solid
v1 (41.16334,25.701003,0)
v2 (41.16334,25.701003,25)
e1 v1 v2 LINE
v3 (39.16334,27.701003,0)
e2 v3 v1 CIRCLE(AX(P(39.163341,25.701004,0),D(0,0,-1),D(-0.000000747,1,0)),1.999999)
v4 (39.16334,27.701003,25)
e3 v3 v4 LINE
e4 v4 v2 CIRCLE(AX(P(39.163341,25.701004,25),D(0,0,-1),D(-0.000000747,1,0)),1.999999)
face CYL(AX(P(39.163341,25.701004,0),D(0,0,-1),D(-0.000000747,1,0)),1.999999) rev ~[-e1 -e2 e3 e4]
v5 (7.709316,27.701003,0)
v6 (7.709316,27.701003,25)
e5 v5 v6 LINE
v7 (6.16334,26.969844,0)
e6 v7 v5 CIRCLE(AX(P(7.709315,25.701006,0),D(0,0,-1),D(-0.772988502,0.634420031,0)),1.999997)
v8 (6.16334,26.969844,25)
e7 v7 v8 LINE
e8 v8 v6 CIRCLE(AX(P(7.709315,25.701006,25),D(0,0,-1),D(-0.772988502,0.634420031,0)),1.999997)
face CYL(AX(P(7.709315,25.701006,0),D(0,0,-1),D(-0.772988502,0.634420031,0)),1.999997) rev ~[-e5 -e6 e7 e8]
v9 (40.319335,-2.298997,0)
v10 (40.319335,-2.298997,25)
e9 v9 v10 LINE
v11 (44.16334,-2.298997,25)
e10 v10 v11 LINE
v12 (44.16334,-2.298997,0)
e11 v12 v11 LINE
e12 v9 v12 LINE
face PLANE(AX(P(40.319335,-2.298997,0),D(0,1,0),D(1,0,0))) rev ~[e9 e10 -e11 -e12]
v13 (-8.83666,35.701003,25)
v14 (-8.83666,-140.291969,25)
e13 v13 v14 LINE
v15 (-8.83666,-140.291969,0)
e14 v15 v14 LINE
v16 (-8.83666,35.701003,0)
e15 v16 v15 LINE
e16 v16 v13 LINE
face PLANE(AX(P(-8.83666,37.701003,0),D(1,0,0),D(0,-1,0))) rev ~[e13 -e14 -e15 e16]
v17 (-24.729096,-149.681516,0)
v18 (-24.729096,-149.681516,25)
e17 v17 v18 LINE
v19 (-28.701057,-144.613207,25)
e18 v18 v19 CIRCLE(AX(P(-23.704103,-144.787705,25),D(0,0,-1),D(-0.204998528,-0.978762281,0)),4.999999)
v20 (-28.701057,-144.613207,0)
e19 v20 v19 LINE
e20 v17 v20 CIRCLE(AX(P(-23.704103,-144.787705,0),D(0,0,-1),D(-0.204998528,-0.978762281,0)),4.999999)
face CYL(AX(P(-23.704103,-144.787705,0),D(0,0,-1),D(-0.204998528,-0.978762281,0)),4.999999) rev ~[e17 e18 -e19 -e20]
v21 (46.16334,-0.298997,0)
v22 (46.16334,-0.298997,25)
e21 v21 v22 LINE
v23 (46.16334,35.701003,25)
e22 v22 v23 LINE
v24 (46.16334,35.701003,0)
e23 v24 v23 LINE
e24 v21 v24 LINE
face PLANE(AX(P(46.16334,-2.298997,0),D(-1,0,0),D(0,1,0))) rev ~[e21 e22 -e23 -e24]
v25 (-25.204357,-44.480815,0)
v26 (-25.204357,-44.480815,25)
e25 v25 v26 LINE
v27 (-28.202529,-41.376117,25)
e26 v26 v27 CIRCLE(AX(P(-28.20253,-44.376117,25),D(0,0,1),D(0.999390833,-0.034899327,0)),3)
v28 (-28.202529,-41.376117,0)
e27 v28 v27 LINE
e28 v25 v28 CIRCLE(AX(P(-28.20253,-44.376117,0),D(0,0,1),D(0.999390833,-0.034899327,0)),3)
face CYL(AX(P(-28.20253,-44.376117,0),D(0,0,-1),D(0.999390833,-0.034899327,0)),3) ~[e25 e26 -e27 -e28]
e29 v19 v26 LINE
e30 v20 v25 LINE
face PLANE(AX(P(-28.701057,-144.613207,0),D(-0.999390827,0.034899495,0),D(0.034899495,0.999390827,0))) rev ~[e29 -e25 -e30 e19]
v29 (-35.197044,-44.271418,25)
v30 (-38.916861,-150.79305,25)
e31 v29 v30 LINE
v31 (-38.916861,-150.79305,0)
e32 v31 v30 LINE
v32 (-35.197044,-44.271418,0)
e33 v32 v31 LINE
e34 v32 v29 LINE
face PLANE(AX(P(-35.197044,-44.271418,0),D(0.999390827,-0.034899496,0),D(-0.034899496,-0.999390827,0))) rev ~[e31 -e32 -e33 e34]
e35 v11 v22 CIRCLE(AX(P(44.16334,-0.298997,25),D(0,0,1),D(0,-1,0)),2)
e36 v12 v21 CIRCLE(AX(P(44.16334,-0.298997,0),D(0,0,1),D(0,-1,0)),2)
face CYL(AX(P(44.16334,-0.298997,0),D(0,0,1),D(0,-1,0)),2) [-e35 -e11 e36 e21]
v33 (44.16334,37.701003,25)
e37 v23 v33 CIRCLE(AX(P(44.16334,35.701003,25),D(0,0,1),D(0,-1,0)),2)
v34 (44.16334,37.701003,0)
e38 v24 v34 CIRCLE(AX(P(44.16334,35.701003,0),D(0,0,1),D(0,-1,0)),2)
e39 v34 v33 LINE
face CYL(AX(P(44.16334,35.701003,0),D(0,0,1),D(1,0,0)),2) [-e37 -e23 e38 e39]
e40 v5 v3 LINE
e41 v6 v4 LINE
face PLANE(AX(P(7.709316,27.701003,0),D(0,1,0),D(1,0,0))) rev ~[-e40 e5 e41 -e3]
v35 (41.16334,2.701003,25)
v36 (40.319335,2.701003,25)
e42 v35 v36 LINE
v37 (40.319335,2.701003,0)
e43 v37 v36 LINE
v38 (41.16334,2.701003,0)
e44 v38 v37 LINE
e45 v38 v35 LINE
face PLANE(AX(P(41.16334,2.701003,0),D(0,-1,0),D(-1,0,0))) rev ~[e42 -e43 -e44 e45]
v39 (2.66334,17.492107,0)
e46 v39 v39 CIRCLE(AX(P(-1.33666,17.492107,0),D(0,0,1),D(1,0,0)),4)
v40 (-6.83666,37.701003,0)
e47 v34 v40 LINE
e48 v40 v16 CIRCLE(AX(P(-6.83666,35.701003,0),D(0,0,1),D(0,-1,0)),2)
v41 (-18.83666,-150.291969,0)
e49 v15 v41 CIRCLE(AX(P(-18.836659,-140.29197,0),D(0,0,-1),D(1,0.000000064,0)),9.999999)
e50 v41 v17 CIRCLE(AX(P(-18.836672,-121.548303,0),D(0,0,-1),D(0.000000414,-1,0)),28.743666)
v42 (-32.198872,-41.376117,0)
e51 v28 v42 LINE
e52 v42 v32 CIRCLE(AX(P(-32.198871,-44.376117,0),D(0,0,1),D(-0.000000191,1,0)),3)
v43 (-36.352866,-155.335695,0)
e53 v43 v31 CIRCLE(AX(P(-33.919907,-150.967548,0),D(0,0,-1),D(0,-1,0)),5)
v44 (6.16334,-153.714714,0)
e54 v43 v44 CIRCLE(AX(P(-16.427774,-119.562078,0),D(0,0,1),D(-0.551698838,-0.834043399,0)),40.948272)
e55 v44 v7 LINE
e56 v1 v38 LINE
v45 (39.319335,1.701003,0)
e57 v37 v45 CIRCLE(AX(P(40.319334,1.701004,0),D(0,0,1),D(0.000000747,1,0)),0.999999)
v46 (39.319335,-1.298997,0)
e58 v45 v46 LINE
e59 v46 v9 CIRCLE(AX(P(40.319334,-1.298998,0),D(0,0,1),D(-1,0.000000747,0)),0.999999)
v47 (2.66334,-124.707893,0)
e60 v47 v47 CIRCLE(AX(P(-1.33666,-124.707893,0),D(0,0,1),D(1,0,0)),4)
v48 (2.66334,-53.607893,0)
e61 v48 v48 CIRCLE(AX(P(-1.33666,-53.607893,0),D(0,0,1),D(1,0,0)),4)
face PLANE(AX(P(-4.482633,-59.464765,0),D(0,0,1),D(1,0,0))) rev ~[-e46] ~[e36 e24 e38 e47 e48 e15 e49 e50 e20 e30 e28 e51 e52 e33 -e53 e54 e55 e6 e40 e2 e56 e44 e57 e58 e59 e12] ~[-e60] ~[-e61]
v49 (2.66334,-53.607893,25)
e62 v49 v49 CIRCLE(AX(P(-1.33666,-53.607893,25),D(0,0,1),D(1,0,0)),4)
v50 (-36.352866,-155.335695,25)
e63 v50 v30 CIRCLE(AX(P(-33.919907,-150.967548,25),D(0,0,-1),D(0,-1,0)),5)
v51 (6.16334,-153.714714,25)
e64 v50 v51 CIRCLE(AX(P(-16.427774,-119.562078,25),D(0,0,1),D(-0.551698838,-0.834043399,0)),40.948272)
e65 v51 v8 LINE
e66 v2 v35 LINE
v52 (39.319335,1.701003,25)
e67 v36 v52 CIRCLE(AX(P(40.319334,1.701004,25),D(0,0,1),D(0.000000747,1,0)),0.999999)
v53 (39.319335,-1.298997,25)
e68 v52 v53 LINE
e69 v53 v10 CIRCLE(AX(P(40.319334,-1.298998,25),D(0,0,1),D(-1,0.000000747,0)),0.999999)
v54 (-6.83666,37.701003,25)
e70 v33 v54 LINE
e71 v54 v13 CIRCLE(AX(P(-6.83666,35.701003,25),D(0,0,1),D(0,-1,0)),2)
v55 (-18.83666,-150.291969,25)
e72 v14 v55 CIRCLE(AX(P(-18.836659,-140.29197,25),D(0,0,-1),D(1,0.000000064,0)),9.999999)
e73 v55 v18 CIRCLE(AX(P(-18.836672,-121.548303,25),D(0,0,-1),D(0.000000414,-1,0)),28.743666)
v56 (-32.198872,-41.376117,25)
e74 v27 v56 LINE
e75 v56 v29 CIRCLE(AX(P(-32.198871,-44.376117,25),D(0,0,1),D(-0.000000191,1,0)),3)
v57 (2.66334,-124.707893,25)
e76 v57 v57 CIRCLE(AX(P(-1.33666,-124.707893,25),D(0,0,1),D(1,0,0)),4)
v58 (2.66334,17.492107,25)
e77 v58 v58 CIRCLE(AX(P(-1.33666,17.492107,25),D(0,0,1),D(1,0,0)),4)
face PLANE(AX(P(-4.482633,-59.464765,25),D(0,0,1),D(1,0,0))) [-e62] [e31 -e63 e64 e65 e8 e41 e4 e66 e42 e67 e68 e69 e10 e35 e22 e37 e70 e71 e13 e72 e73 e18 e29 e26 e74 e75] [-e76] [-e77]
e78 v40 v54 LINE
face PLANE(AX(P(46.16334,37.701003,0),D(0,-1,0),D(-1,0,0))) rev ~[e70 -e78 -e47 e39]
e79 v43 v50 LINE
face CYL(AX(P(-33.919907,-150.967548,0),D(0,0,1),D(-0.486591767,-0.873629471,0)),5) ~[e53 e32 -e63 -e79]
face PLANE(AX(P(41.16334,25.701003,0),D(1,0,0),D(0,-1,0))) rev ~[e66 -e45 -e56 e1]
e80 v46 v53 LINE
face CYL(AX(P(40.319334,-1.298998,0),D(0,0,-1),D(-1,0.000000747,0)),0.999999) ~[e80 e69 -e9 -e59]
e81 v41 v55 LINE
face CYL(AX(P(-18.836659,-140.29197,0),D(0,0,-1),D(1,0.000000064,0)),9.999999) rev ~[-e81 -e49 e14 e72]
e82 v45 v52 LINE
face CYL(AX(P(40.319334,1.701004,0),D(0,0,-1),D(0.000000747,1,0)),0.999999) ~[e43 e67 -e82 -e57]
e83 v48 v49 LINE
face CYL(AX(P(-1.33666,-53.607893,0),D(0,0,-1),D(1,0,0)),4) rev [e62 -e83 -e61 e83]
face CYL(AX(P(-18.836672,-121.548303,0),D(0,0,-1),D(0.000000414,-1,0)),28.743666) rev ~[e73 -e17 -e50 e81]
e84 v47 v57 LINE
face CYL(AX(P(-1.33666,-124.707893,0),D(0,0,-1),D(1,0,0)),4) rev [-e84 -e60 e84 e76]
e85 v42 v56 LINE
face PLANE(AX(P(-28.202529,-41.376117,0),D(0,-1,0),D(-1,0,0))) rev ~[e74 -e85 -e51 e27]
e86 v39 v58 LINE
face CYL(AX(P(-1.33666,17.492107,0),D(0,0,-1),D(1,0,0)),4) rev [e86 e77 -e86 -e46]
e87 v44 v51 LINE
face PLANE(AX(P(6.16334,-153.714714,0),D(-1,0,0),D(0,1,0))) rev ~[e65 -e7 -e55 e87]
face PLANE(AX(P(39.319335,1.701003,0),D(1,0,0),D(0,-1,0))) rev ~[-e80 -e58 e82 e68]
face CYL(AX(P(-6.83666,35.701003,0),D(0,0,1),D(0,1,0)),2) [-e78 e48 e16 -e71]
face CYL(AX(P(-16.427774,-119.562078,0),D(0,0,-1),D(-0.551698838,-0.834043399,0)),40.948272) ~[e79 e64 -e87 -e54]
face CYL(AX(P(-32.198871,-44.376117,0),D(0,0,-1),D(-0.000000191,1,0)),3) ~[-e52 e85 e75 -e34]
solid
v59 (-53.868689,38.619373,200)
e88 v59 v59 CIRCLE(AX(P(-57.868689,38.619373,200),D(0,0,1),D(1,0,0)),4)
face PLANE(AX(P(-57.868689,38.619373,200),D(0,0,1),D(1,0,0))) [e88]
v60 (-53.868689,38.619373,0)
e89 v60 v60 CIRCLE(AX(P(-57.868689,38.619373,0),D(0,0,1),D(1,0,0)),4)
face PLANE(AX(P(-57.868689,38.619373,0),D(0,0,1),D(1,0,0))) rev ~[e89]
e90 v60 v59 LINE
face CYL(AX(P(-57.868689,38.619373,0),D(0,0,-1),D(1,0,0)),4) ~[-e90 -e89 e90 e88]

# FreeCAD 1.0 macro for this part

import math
import FreeCAD as App
import Part
import Sketcher

V = App.Vector


def edges_at(feature, points):
    """Names of the edges that pass closest to the given points."""
    edges = feature.Shape.Edges
    near = lambda p: min(range(len(edges)), key=lambda i: edges[i].distToShape(Part.Vertex(*p))[0])
    return sorted({f"Edge{near(p) + 1}" for p in points})

doc = App.newDocument("Part")
body = doc.addObject("PartDesign::Body", "Body")

# Sketch on XY plane
sketch1 = body.newObject("Sketcher::SketchObject", "Sketch")
sketch1.AttachmentSupport = (doc.getObject("XY_Plane"), [""])
sketch1.MapMode = "FlatFace"
sketch1.addGeometry([
    Part.ArcOfCircle(Part.Circle(V(7.709315, 25.701006, 0), V(0, 0, 1), 1.999997), math.radians(89.999972), math.radians(140.623018)),  # 0
    Part.LineSegment(V(7.709316, 27.701003, 0), V(39.16334, 27.701003, 0)),  # 1
    Part.ArcOfCircle(Part.Circle(V(39.163341, 25.701004, 0), V(0, 0, 1), 1.999999), math.radians(-0.000043), math.radians(90.000043)),  # 2
    Part.LineSegment(V(41.16334, 25.701003, 0), V(41.16334, 2.701003, 0)),  # 3
    Part.LineSegment(V(41.16334, 2.701003, 0), V(40.319335, 2.701003, 0)),  # 4
    Part.ArcOfCircle(Part.Circle(V(40.319334, 1.701004, 0), V(0, 0, 1), 0.999999), math.radians(89.999957), math.radians(180.000043)),  # 5
    Part.LineSegment(V(39.319335, 1.701003, 0), V(39.319335, -1.298997, 0)),  # 6
    Part.ArcOfCircle(Part.Circle(V(40.319334, -1.298998, 0), V(0, 0, 1), 0.999999), math.radians(179.999957), math.radians(270.000043)),  # 7
    Part.LineSegment(V(40.319335, -2.298997, 0), V(46.16334, -2.298997, 0)),  # 8
    Part.LineSegment(V(46.16334, -2.298997, 0), V(46.16334, 37.701003, 0)),  # 9
    Part.LineSegment(V(46.16334, 37.701003, 0), V(-8.83666, 37.701003, 0)),  # 10
    Part.LineSegment(V(-8.83666, 37.701003, 0), V(-8.83666, -140.291969, 0)),  # 11
    Part.ArcOfCircle(Part.Circle(V(-18.836659, -140.29197, 0), V(0, 0, 1), 9.999999), math.radians(-90.000004), math.radians(0.000004)),  # 12
    Part.ArcOfCircle(Part.Circle(V(-18.836672, -121.548303, 0), V(0, 0, 1), 28.743666), math.radians(-101.829443), math.radians(-89.999976)),  # 13
    Part.ArcOfCircle(Part.Circle(V(-23.704103, -144.787705, 0), V(0, 0, 1), 4.999999), math.radians(177.999992), math.radians(258.170587)),  # 14
    Part.LineSegment(V(-28.701057, -144.613207, 0), V(-25.204357, -44.480815, 0)),  # 15
    Part.ArcOfCircle(Part.Circle(V(-28.20253, -44.376117, 0), V(0, 0, 1), 3), math.radians(-1.99999), math.radians(89.99999)),  # 16
    Part.LineSegment(V(-28.202529, -41.376117, 0), V(-32.198872, -41.376117, 0)),  # 17
    Part.ArcOfCircle(Part.Circle(V(-32.198871, -44.376117, 0), V(0, 0, 1), 3), math.radians(90.000011), math.radians(177.999988)),  # 18
    Part.LineSegment(V(-35.197044, -44.271418, 0), V(-39.018888, -153.714714, 0)),  # 19
    Part.ArcOfCircle(Part.Circle(V(-16.427774, -119.562078, 0), V(0, 0, 1), 40.948272), math.radians(-123.483639), math.radians(-56.516361)),  # 20
    Part.LineSegment(V(6.16334, -153.714714, 0), V(6.16334, 26.969844, 0)),  # 21
    Part.Circle(V(-1.33666, -124.707893, 0), V(0, 0, 1), 4),  # 22
    Part.Circle(V(-1.33666, -53.607893, 0), V(0, 0, 1), 4),  # 23
    Part.Circle(V(-1.33666, 17.492107, 0), V(0, 0, 1), 4),  # 24
], False)
sketch1.addConstraint([
    Sketcher.Constraint("Coincident", 0, 1, 1, 1),
    Sketcher.Constraint("Coincident", 1, 2, 2, 2),
    Sketcher.Constraint("Coincident", 2, 1, 3, 1),
    Sketcher.Constraint("Coincident", 3, 2, 4, 1),
    Sketcher.Constraint("Coincident", 4, 2, 5, 1),
    Sketcher.Constraint("Coincident", 5, 2, 6, 1),
    Sketcher.Constraint("Coincident", 6, 2, 7, 1),
    Sketcher.Constraint("Coincident", 7, 2, 8, 1),
    Sketcher.Constraint("Coincident", 8, 2, 9, 1),
    Sketcher.Constraint("Coincident", 9, 2, 10, 1),
    Sketcher.Constraint("Coincident", 10, 2, 11, 1),
    Sketcher.Constraint("Coincident", 11, 2, 12, 2),
    Sketcher.Constraint("Coincident", 12, 1, 13, 2),
    Sketcher.Constraint("Coincident", 13, 1, 14, 2),
    Sketcher.Constraint("Coincident", 14, 1, 15, 1),
    Sketcher.Constraint("Coincident", 15, 2, 16, 1),
    Sketcher.Constraint("Coincident", 16, 2, 17, 1),
    Sketcher.Constraint("Coincident", 17, 2, 18, 1),
    Sketcher.Constraint("Coincident", 18, 2, 19, 1),
    Sketcher.Constraint("Coincident", 19, 2, 20, 1),
    Sketcher.Constraint("Coincident", 20, 2, 21, 1),
    Sketcher.Constraint("Coincident", 21, 2, 0, 2),
    Sketcher.Constraint("Horizontal", 1),
    Sketcher.Constraint("Vertical", 3),
    Sketcher.Constraint("Horizontal", 4),
    Sketcher.Constraint("Vertical", 6),
    Sketcher.Constraint("Horizontal", 8),
    Sketcher.Constraint("Vertical", 9),
    Sketcher.Constraint("Horizontal", 10),
    Sketcher.Constraint("Vertical", 11),
    Sketcher.Constraint("Horizontal", 17),
    Sketcher.Constraint("Vertical", 21),
    Sketcher.Constraint("Diameter", 22, 8.0),
    Sketcher.Constraint("Diameter", 23, 8.0),
    Sketcher.Constraint("Diameter", 24, 8.0),
    Sketcher.Constraint("Radius", 2, 1.999999),
    Sketcher.Constraint("Radius", 5, 0.999999),
    Sketcher.Constraint("Radius", 7, 0.999999),
    Sketcher.Constraint("Radius", 12, 9.999999),
    Sketcher.Constraint("Radius", 14, 4.999999),
    Sketcher.Constraint("Radius", 16, 3.0),
    Sketcher.Constraint("Radius", 18, 3.0),
    Sketcher.Constraint("DistanceX", 10, 2, 10, 1, 55.0),
    Sketcher.Constraint("DistanceY", 3, 2, 3, 1, 23.0),
    Sketcher.Constraint("DistanceY", 6, 2, 6, 1, 3.0),
    Sketcher.Constraint("DistanceY", 9, 1, 9, 2, 40.0),
    Sketcher.Constraint("DistanceY", 5, 3, 2, 3, 24.000001),
    Sketcher.Constraint("DistanceY", 5, 3, 0, 3, 24.000002),
    Sketcher.Constraint("DistanceY", 7, 3, 5, 3, 3.000001),
    Sketcher.Constraint("DistanceX", 12, 3, 2, 3, 58.000001),
    Sketcher.Constraint("DistanceX", 1, 2, 2, 1, 2.0),
    Sketcher.Constraint("DistanceX", 5, 2, 4, 2, 1.0),
    Sketcher.Constraint("DistanceY", 5, 2, 4, 2, 1.0),
    Sketcher.Constraint("DistanceX", 6, 2, 7, 2, 1.0),
    Sketcher.Constraint("DistanceX", 12, 1, 11, 2, 10.0),
    Sketcher.Constraint("DistanceY", 12, 1, 11, 2, 10.0),
    Sketcher.Constraint("DistanceX", 11, 2, 20, 2, 15.0),
    Sketcher.Constraint("DistanceX", 12, 3, 22, 3, 17.499999),
    Sketcher.Constraint("DistanceX", 24, 3, 2, 3, 40.500001),
    Sketcher.Constraint("Radius", 20, 40.948272),
    Sketcher.Constraint("Radius", 13, 28.743666),
    Sketcher.Constraint("DistanceY", 11, 2, 11, 1, 177.992972),
    Sketcher.Constraint("DistanceX", 18, 3, 13, 3, 13.3622),
    Sketcher.Constraint("DistanceY", 24, 3, 0, 3, 8.208899),
    Sketcher.Constraint("DistanceY", 14, 3, 14, 1, 0.174498),
    Sketcher.Constraint("DistanceY", 18, 3, 18, 2, 0.104699),
    Sketcher.Constraint("DistanceX", 1, 1, 1, 2, 31.454024),
    Sketcher.Constraint("DistanceX", 4, 2, 4, 1, 0.844005),
    Sketcher.Constraint("DistanceX", 17, 2, 17, 1, 3.996343),
    Sketcher.Constraint("DistanceY", 21, 1, 21, 2, 180.684558),
    Sketcher.Constraint("DistanceX", -1, 1, 2, 3, 39.163341),
    Sketcher.Constraint("DistanceY", 12, 3, -1, 1, 140.29197),
    Sketcher.Constraint("DistanceX", 13, 3, -1, 1, 18.836672),
    Sketcher.Constraint("DistanceX", 16, 3, -1, 1, 28.20253),
    Sketcher.Constraint("DistanceY", 20, 3, -1, 1, 119.562078),
    Sketcher.Constraint("DistanceX", 23, 3, -1, 1, 1.33666),
    Sketcher.Constraint("DistanceX", 16, 2, -1, 1, 28.202529),
    Sketcher.Constraint("DistanceX", 0, 3, 5, 3, 32.610019),
    Sketcher.Constraint("DistanceX", 14, 3, 13, 3, 4.867432),
    Sketcher.Constraint("DistanceY", 16, 3, 7, 3, 43.077119),
    Sketcher.Constraint("DistanceY", 22, 3, 13, 3, 3.15959),
    Sketcher.Constraint("DistanceY", 13, 1, 14, 3, 4.893811),
    Sketcher.Constraint("DistanceY", 15, 2, 24, 3, 61.972922),
    Sketcher.Constraint("DistanceX", 19, 2, 14, 1, 10.317831),
    Sketcher.Constraint("DistanceY", 23, 3, -1, 1, 53.607893),
])
pad1 = body.newObject("PartDesign::Pad", "Pad")
pad1.Profile = sketch1
pad1.Length = 25
doc.recompute()

fillet = body.newObject("PartDesign::Fillet", "Fillet")
fillet.Base = (pad1, edges_at(pad1, [(-8.837, 37.701, 12.5), (46.163, 37.701, 12.5), (46.163, -2.299, 12.5)]))
fillet.Radius = 2
doc.recompute()

fillet2 = body.newObject("PartDesign::Fillet", "Fillet001")
fillet2.Base = (fillet, edges_at(fillet, [(-39.019, -153.715, 12.5)]))
fillet2.Radius = 5
body2 = doc.addObject("PartDesign::Body", "Body001")

# Sketch on XY plane
sketch2 = body2.newObject("Sketcher::SketchObject", "Sketch001")
sketch2.AttachmentSupport = (doc.getObject("XY_Plane001"), [""])
sketch2.MapMode = "FlatFace"
sketch2.addGeometry(Part.Circle(V(-57.868689, 38.619373, 0), V(0, 0, 1), 4), False)
sketch2.addConstraint([
    Sketcher.Constraint("Diameter", 0, 8.0),
    Sketcher.Constraint("DistanceX", 0, 3, -1, 1, 57.868689),
    Sketcher.Constraint("DistanceY", -1, 1, 0, 3, 38.619373),
])
pad2 = body2.newObject("PartDesign::Pad", "Pad001")
pad2.Profile = sketch2
pad2.Length = 200

doc.recompute()
